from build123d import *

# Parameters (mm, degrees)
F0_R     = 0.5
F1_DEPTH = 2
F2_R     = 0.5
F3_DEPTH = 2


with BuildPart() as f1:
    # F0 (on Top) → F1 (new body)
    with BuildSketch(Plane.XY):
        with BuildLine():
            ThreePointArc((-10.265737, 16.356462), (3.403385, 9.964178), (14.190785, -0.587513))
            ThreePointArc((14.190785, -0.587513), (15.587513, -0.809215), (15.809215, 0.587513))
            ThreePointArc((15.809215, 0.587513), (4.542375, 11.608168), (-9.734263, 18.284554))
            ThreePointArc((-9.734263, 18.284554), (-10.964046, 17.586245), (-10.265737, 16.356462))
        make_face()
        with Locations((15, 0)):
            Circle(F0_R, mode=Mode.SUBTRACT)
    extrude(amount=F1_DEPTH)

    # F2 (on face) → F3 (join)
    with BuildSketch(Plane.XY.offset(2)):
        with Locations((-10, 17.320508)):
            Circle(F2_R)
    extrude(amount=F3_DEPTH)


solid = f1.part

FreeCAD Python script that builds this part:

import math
import FreeCAD as App
import Part
import Sketcher
from FreeCAD import Vector

doc = App.newDocument("Part")
body = doc.addObject("PartDesign::Body", "Body")

# Sketch on XY plane
sketch1 = body.newObject("Sketcher::SketchObject", "Sketch")
sketch1.AttachmentSupport = (doc.getObject("XY_Plane"), [""])
sketch1.MapMode = "FlatFace"
sketch1.addGeometry(Part.ArcOfCircle(Part.Circle(Vector(-22.2, -27, 0), Vector(0, 0, 1), 45), math.radians(36), math.radians(75)), False)
sketch1.addGeometry(Part.ArcOfCircle(Part.Circle(Vector(15, 0, 0), Vector(0, 0, 1), 1), math.radians(-144), math.radians(36)), False)
sketch1.addGeometry(Part.ArcOfCircle(Part.Circle(Vector(-22.2, -27, 0), Vector(0, 0, 1), 47), math.radians(36), math.radians(75)), False)
sketch1.addGeometry(Part.ArcOfCircle(Part.Circle(Vector(-10, 17.3, 0), Vector(0, 0, 1), 1), math.radians(75), math.radians(255)), False)
sketch1.addGeometry(Part.Circle(Vector(15, 0, 0), Vector(0, 0, 1), 0.5), False)
sketch1.addConstraint(Sketcher.Constraint("Tangent", 0, 1, 1, 1))
sketch1.addConstraint(Sketcher.Constraint("Tangent", 1, 2, 2, 1))
sketch1.addConstraint(Sketcher.Constraint("Tangent", 2, 2, 3, 1))
sketch1.addConstraint(Sketcher.Constraint("Tangent", 3, 2, 0, 2))
sketch1.addConstraint(Sketcher.Constraint("Coincident", 2, 3, 0, 3))
sketch1.addConstraint(Sketcher.Constraint("Coincident", 4, 3, 1, 3))
sketch1.addConstraint(Sketcher.Constraint("PointOnObject", 1, 3, -1))
sketch1.addConstraint(Sketcher.Constraint("Diameter", 4, 1.0))
sketch1.addConstraint(Sketcher.Constraint("Radius", 1, 1.0))
sketch1.addConstraint(Sketcher.Constraint("DistanceX", -1, 1, 1, 3, 15.0))
sketch1.addConstraint(Sketcher.Constraint("DistanceX", 3, 3, -1, 1, 10.0))
sketch1.addConstraint(Sketcher.Constraint("Radius", 2, 47.000008))
sketch1.addConstraint(Sketcher.Constraint("DistanceY", 2, 3, -1, 1, 27.025601))
pad1 = body.newObject("PartDesign::Pad", "Pad")
pad1.Profile = sketch1
pad1.Length = 2

# Sketch on XY plane
sketch2 = body.newObject("Sketcher::SketchObject", "Sketch001")
sketch2.AttachmentSupport = (doc.getObject("XY_Plane"), [""])
sketch2.MapMode = "FlatFace"
sketch2.AttachmentOffset = App.Placement(Vector(0, 0, 2), App.Rotation())
sketch2.addGeometry(Part.Circle(Vector(-10, 17.3, 0), Vector(0, 0, 1), 0.5), False)
sketch2.addConstraint(Sketcher.Constraint("Diameter", 0, 1.0))
sketch2.addConstraint(Sketcher.Constraint("DistanceX", 0, 3, -1, 1, 10.0))
sketch2.addConstraint(Sketcher.Constraint("DistanceY", -1, 1, 0, 3, 17.320508))
pad2 = body.newObject("PartDesign::Pad", "Pad001")
pad2.Profile = sketch2
pad2.Length = 2

doc.recompute()
